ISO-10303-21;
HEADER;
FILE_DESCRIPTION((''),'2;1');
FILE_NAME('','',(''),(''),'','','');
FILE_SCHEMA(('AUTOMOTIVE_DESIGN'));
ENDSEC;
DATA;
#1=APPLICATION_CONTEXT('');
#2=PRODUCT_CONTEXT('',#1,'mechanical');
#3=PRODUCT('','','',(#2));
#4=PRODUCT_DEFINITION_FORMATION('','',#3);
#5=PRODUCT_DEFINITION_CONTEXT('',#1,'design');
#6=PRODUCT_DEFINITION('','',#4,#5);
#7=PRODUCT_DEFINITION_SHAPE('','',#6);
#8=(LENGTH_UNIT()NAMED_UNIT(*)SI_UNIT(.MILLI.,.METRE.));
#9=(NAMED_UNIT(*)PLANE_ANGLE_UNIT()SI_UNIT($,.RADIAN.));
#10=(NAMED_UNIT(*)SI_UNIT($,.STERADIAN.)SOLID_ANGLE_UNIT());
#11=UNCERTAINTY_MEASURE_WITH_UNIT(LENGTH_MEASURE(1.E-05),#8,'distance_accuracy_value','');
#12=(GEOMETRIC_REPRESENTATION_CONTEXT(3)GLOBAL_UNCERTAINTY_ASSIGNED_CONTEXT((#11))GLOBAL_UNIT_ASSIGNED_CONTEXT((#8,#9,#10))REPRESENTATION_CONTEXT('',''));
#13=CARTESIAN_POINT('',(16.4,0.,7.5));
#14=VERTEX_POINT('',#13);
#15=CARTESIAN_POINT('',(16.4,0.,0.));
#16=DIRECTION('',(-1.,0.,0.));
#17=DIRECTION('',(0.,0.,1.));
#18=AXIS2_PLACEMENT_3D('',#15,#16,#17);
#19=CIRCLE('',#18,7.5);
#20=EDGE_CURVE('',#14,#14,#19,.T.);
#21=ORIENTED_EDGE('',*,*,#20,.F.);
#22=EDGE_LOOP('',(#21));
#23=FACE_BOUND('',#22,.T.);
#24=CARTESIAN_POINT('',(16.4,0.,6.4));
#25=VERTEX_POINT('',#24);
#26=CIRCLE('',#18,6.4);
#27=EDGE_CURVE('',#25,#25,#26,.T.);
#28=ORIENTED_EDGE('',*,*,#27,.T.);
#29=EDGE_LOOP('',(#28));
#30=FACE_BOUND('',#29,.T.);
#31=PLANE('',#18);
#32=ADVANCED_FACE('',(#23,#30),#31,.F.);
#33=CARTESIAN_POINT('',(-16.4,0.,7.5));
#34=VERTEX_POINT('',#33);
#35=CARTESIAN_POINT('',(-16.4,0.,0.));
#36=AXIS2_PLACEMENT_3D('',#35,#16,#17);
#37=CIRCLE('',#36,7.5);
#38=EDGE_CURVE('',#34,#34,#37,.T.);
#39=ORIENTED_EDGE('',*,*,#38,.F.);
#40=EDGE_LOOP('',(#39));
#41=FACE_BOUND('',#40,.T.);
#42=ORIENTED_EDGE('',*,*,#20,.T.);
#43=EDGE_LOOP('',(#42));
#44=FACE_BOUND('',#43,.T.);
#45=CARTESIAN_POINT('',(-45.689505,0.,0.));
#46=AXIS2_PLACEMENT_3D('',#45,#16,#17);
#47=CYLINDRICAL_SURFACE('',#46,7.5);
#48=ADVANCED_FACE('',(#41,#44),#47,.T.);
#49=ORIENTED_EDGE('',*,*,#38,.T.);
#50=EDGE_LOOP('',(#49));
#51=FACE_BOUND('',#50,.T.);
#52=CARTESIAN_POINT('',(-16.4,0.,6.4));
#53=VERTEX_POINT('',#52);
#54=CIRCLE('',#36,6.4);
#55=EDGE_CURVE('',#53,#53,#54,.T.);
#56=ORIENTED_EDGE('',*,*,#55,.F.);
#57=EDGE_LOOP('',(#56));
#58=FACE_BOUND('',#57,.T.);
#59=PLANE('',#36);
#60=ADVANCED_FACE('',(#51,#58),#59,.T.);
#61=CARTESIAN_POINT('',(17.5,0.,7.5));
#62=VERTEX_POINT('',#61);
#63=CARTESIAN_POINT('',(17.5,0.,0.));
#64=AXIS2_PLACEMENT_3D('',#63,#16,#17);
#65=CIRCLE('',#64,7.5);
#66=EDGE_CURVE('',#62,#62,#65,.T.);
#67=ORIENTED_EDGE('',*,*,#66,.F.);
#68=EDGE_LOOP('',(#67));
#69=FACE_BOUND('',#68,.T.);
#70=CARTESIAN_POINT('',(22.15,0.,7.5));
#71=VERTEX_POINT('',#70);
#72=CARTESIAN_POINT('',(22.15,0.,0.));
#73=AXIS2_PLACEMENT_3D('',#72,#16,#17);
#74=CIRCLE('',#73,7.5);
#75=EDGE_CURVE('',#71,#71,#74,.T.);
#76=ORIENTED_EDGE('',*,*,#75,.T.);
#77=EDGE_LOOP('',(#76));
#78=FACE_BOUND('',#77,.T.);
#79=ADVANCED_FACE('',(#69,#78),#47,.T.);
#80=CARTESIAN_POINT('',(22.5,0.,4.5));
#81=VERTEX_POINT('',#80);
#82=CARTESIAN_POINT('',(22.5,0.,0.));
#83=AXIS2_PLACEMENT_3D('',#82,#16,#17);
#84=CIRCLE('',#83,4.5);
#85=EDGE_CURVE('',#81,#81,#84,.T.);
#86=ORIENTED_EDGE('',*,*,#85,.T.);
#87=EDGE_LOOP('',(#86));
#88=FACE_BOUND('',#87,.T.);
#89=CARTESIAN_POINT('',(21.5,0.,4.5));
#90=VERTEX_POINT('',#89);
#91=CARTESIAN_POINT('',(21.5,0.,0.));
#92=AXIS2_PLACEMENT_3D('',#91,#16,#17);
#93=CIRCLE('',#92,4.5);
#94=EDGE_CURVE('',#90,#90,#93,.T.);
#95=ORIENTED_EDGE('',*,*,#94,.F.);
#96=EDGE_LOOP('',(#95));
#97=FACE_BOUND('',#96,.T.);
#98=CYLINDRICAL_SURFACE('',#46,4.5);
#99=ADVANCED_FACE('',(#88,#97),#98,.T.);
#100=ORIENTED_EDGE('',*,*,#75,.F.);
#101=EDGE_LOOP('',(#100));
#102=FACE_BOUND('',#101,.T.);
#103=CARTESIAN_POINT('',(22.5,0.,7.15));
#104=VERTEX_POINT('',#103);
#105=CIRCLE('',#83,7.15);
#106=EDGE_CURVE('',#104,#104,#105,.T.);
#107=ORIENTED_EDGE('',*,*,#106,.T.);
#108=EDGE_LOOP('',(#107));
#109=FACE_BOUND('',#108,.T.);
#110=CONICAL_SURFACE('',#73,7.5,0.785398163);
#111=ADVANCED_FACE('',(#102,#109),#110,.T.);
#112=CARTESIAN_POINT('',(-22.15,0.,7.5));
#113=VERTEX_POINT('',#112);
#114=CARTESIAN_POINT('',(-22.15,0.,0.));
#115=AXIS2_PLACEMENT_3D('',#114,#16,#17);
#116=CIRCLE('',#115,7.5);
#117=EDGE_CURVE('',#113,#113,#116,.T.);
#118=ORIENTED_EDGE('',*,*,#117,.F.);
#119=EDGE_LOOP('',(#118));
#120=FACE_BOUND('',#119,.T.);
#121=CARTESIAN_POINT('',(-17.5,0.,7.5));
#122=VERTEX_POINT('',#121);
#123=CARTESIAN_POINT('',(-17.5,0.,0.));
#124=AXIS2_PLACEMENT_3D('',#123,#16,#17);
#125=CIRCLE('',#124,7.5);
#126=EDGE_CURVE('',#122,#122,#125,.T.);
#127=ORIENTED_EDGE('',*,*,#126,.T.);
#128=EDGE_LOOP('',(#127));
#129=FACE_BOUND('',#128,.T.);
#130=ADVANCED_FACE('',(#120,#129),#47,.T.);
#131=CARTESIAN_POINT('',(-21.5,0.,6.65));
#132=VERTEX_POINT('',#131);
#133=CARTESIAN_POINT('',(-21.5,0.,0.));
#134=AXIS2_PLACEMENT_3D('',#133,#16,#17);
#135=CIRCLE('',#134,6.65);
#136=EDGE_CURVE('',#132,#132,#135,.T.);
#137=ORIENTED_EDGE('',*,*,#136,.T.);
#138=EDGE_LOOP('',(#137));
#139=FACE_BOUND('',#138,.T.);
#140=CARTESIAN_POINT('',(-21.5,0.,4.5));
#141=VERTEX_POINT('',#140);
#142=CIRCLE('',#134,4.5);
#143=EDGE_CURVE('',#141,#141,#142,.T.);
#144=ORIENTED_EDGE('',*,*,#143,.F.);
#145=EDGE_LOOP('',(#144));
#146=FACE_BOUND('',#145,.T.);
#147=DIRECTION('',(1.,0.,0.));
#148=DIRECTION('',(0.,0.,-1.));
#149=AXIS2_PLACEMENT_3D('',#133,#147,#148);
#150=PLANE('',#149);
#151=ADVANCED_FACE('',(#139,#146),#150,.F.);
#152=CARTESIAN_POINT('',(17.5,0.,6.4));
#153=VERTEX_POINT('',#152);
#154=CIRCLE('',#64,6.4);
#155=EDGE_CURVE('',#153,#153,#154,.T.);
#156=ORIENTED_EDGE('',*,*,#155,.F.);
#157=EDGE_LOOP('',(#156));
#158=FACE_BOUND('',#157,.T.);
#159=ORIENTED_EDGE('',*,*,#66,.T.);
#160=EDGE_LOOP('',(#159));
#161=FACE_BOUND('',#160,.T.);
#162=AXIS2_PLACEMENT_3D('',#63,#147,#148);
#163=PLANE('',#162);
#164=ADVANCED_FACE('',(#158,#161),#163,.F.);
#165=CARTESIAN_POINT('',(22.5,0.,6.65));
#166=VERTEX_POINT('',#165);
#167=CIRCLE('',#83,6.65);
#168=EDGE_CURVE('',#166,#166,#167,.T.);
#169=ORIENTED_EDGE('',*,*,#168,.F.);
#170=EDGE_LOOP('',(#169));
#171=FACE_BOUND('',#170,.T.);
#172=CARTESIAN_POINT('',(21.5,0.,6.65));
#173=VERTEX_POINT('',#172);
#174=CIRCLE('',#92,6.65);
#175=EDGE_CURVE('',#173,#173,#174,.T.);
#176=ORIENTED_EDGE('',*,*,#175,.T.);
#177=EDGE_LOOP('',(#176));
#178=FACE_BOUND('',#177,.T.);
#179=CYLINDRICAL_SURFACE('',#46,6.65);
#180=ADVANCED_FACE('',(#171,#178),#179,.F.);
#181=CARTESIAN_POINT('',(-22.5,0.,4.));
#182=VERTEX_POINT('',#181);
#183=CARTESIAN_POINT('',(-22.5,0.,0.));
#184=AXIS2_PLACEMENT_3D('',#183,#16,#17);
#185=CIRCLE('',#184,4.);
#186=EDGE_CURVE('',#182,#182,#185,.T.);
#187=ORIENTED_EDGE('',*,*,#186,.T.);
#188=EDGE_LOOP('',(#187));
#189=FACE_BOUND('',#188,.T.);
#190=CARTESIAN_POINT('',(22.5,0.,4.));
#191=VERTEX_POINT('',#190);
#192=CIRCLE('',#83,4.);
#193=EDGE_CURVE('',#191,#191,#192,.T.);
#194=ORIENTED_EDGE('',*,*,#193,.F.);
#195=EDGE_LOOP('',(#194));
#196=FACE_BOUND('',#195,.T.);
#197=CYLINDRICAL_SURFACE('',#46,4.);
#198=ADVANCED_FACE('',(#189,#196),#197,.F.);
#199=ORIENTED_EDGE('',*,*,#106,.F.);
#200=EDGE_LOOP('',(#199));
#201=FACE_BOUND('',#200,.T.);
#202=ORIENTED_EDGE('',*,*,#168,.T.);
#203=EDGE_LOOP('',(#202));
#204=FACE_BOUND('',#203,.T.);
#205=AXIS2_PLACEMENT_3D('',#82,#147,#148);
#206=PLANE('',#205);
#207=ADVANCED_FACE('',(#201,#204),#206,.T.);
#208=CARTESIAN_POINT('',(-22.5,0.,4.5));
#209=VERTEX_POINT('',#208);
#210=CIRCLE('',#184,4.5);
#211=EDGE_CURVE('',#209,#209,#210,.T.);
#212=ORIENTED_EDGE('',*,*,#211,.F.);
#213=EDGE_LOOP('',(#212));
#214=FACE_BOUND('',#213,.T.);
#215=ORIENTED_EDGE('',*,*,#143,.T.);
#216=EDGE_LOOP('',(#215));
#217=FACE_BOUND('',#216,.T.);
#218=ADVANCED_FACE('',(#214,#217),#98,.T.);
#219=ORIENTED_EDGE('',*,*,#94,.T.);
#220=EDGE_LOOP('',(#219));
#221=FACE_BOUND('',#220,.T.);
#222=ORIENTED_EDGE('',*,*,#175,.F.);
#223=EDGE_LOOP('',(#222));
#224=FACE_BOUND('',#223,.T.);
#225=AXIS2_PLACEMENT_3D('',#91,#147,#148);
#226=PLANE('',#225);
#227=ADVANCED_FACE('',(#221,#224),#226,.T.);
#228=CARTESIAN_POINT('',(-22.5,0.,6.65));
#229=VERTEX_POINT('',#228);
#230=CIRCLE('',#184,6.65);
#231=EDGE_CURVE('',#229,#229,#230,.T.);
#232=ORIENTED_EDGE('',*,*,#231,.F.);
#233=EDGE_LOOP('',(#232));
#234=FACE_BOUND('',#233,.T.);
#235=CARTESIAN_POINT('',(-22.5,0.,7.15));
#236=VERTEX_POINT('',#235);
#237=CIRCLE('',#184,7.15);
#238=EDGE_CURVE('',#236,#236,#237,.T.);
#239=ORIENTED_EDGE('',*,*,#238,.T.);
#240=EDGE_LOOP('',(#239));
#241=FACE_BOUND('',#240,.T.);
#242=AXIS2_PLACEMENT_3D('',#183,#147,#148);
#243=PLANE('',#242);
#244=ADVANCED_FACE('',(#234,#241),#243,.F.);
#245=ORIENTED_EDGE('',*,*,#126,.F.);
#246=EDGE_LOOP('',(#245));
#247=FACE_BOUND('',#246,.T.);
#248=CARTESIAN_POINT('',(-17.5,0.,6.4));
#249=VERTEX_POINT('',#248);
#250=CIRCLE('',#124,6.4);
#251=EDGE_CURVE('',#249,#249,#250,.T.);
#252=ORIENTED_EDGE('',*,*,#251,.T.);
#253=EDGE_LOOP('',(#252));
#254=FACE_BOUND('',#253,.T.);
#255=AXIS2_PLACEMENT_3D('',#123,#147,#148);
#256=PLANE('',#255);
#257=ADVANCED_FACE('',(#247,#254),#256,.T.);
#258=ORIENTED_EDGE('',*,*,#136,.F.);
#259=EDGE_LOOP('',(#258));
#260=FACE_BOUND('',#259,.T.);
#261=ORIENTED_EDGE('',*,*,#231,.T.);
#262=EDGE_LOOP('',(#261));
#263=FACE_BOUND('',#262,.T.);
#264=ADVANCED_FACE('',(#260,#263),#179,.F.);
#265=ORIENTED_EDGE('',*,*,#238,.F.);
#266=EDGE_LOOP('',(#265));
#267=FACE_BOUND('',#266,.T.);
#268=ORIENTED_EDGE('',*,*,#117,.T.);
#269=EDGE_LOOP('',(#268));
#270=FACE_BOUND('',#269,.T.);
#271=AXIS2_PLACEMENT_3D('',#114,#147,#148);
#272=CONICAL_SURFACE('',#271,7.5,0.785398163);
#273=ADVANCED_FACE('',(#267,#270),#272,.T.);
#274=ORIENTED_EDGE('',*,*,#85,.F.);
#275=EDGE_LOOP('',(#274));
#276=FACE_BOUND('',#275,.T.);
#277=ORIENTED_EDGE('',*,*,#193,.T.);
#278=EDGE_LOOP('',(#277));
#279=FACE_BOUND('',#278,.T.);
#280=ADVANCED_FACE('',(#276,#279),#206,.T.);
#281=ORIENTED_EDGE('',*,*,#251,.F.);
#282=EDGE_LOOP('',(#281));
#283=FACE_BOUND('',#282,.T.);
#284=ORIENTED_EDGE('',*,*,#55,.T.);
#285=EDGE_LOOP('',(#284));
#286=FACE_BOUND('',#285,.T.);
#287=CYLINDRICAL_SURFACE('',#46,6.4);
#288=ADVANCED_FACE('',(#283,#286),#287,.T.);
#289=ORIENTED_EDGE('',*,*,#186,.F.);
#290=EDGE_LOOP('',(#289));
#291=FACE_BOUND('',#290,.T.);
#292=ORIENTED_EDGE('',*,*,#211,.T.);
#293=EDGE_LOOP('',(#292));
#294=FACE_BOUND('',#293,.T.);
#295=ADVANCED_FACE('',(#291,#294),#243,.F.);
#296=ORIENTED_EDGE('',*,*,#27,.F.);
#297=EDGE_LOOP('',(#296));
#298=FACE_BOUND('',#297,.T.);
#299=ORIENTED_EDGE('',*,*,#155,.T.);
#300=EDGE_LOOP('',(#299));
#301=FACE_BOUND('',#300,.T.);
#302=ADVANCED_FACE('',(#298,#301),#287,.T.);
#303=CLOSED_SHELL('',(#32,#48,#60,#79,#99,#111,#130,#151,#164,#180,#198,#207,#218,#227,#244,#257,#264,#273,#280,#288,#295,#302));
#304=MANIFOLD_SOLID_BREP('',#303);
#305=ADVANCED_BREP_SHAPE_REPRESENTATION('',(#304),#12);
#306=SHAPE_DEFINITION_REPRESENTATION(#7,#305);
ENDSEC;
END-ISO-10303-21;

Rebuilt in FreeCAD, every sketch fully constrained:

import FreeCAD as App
import Part
import Sketcher
Q = App.Units.Quantity

doc = App.newDocument("Part")
body = doc.addObject("PartDesign::Body", "Body")

sketch1 = body.newObject("Sketcher::SketchObject", "Sketch")
sketch1.AttachmentSupport = (doc.getObject("XY_Plane"), [""])
sketch1.MapMode = "FlatFace"
sketch1.addGeometry(Part.LineSegment(App.Vector(22.5, 7.15, 0), App.Vector(22.15, 7.5, 0)), False)
sketch1.addGeometry(Part.LineSegment(App.Vector(22.15, 7.5, 0), App.Vector(17.5, 7.5, 0)), False)
sketch1.addGeometry(Part.LineSegment(App.Vector(17.5, 7.5, 0), App.Vector(17.5, 6.4, 0)), False)
sketch1.addGeometry(Part.LineSegment(App.Vector(17.5, 6.4, 0), App.Vector(16.4, 6.4, 0)), False)
sketch1.addGeometry(Part.LineSegment(App.Vector(16.4, 6.4, 0), App.Vector(16.4, 7.5, 0)), False)
sketch1.addGeometry(Part.LineSegment(App.Vector(16.4, 7.5, 0), App.Vector(-16.4, 7.5, 0)), False)
sketch1.addGeometry(Part.LineSegment(App.Vector(-16.4, 7.5, 0), App.Vector(-16.4, 6.4, 0)), False)
sketch1.addGeometry(Part.LineSegment(App.Vector(-16.4, 6.4, 0), App.Vector(-17.5, 6.4, 0)), False)
sketch1.addGeometry(Part.LineSegment(App.Vector(-17.5, 6.4, 0), App.Vector(-17.5, 7.5, 0)), False)
sketch1.addGeometry(Part.LineSegment(App.Vector(-17.5, 7.5, 0), App.Vector(-22.15, 7.5, 0)), False)
sketch1.addGeometry(Part.LineSegment(App.Vector(-22.15, 7.5, 0), App.Vector(-22.5, 7.15, 0)), False)
sketch1.addGeometry(Part.LineSegment(App.Vector(-22.5, 7.15, 0), App.Vector(-22.5, 6.65, 0)), False)
sketch1.addGeometry(Part.LineSegment(App.Vector(-22.5, 6.65, 0), App.Vector(-21.5, 6.65, 0)), False)
sketch1.addGeometry(Part.LineSegment(App.Vector(-21.5, 6.65, 0), App.Vector(-21.5, 4.5, 0)), False)
sketch1.addGeometry(Part.LineSegment(App.Vector(-21.5, 4.5, 0), App.Vector(-22.5, 4.5, 0)), False)
sketch1.addGeometry(Part.LineSegment(App.Vector(-22.5, 4.5, 0), App.Vector(-22.5, 4, 0)), False)
sketch1.addGeometry(Part.LineSegment(App.Vector(-22.5, 4, 0), App.Vector(22.5, 4, 0)), False)
sketch1.addGeometry(Part.LineSegment(App.Vector(22.5, 4, 0), App.Vector(22.5, 4.5, 0)), False)
sketch1.addGeometry(Part.LineSegment(App.Vector(22.5, 4.5, 0), App.Vector(21.5, 4.5, 0)), False)
sketch1.addGeometry(Part.LineSegment(App.Vector(21.5, 4.5, 0), App.Vector(21.5, 6.65, 0)), False)
sketch1.addGeometry(Part.LineSegment(App.Vector(21.5, 6.65, 0), App.Vector(22.5, 6.65, 0)), False)
sketch1.addGeometry(Part.LineSegment(App.Vector(22.5, 6.65, 0), App.Vector(22.5, 7.15, 0)), False)
sketch1.addConstraint(Sketcher.Constraint("Coincident", 0, 2, 1, 1))
sketch1.addConstraint(Sketcher.Constraint("Coincident", 1, 2, 2, 1))
sketch1.addConstraint(Sketcher.Constraint("Coincident", 2, 2, 3, 1))
sketch1.addConstraint(Sketcher.Constraint("Coincident", 3, 2, 4, 1))
sketch1.addConstraint(Sketcher.Constraint("Coincident", 4, 2, 5, 1))
sketch1.addConstraint(Sketcher.Constraint("Coincident", 5, 2, 6, 1))
sketch1.addConstraint(Sketcher.Constraint("Coincident", 6, 2, 7, 1))
sketch1.addConstraint(Sketcher.Constraint("Coincident", 7, 2, 8, 1))
sketch1.addConstraint(Sketcher.Constraint("Coincident", 8, 2, 9, 1))
sketch1.addConstraint(Sketcher.Constraint("Coincident", 9, 2, 10, 1))
sketch1.addConstraint(Sketcher.Constraint("Coincident", 10, 2, 11, 1))
sketch1.addConstraint(Sketcher.Constraint("Coincident", 11, 2, 12, 1))
sketch1.addConstraint(Sketcher.Constraint("Coincident", 12, 2, 13, 1))
sketch1.addConstraint(Sketcher.Constraint("Coincident", 13, 2, 14, 1))
sketch1.addConstraint(Sketcher.Constraint("Coincident", 14, 2, 15, 1))
sketch1.addConstraint(Sketcher.Constraint("Coincident", 15, 2, 16, 1))
sketch1.addConstraint(Sketcher.Constraint("Coincident", 16, 2, 17, 1))
sketch1.addConstraint(Sketcher.Constraint("Coincident", 17, 2, 18, 1))
sketch1.addConstraint(Sketcher.Constraint("Coincident", 18, 2, 19, 1))
sketch1.addConstraint(Sketcher.Constraint("Coincident", 19, 2, 20, 1))
sketch1.addConstraint(Sketcher.Constraint("Coincident", 20, 2, 21, 1))
sketch1.addConstraint(Sketcher.Constraint("Coincident", 21, 2, 0, 1))
sketch1.addConstraint(Sketcher.Constraint("Horizontal", 1))
sketch1.addConstraint(Sketcher.Constraint("Vertical", 2))
sketch1.addConstraint(Sketcher.Constraint("Horizontal", 3))
sketch1.addConstraint(Sketcher.Constraint("Vertical", 4))
sketch1.addConstraint(Sketcher.Constraint("Horizontal", 5))
sketch1.addConstraint(Sketcher.Constraint("Vertical", 6))
sketch1.addConstraint(Sketcher.Constraint("Horizontal", 7))
sketch1.addConstraint(Sketcher.Constraint("Vertical", 8))
sketch1.addConstraint(Sketcher.Constraint("Horizontal", 9))
sketch1.addConstraint(Sketcher.Constraint("Vertical", 11))
sketch1.addConstraint(Sketcher.Constraint("Horizontal", 12))
sketch1.addConstraint(Sketcher.Constraint("Vertical", 13))
sketch1.addConstraint(Sketcher.Constraint("Horizontal", 14))
sketch1.addConstraint(Sketcher.Constraint("Vertical", 15))
sketch1.addConstraint(Sketcher.Constraint("Horizontal", 16))
sketch1.addConstraint(Sketcher.Constraint("Vertical", 17))
sketch1.addConstraint(Sketcher.Constraint("Horizontal", 18))
sketch1.addConstraint(Sketcher.Constraint("Vertical", 19))
sketch1.addConstraint(Sketcher.Constraint("Horizontal", 20))
sketch1.addConstraint(Sketcher.Constraint("Vertical", 21))
sketch1.addConstraint(Sketcher.Constraint("Symmetric", 3, 2, 6, 2, -2))
sketch1.addConstraint(Sketcher.Constraint("Symmetric", 1, 2, 8, 2, -2))
sketch1.addConstraint(Sketcher.Constraint("Symmetric", 14, 2, 17, 2, -2))
sketch1.addConstraint(Sketcher.Constraint("Symmetric", 12, 2, 19, 2, -2))
sketch1.addConstraint(Sketcher.Constraint("Symmetric", 10, 2, 21, 2, -2))
sketch1.addConstraint(Sketcher.Constraint("Perpendicular", 0, 10))
sketch1.addConstraint(Sketcher.Constraint("Horizontal", 1, 2, 4, 2))
sketch1.addConstraint(Sketcher.Constraint("Vertical", 11, 2, 14, 2))
sketch1.addConstraint(Sketcher.Constraint("Equal", 1, 9))
sketch1.addConstraint(Sketcher.Constraint("Equal", 7, 2))
sketch1.addConstraint(Sketcher.Constraint("Equal", 11, 15))
sketch1.addConstraint(Sketcher.Constraint("DistanceX", 12, 1, 12, 2, Q("1 mm")))
sketch1.addConstraint(Sketcher.Constraint("DistanceX", 16, 1, 16, 2, Q("45 mm")))
sketch1.addConstraint(Sketcher.Constraint("DistanceX", 3, 2, 3, 1, Q("1.1 mm")))
sketch1.addConstraint(Sketcher.Constraint("DistanceX", 5, 2, 5, 1, Q("32.8 mm")))
sketch1.addConstraint(Sketcher.Constraint("DistanceY", 11, 2, 11, 1, Q("0.5 mm")))
sketch1.addConstraint(Sketcher.Constraint("DistanceY", -1, 1, 15, 2, Q("4 mm")))
sketch1.addConstraint(Sketcher.Constraint("DistanceY", 13, 2, 9, 2, Q("3 mm")))
sketch1.addConstraint(Sketcher.Constraint("DistanceX", 1, 2, 1, 1, Q("4.65 mm")))
revolution = body.newObject("PartDesign::Revolution", "Revolution")
revolution.Profile = sketch1
revolution.ReferenceAxis = (sketch1, ["H_Axis"])
revolution.Angle = 360

doc.recompute()
